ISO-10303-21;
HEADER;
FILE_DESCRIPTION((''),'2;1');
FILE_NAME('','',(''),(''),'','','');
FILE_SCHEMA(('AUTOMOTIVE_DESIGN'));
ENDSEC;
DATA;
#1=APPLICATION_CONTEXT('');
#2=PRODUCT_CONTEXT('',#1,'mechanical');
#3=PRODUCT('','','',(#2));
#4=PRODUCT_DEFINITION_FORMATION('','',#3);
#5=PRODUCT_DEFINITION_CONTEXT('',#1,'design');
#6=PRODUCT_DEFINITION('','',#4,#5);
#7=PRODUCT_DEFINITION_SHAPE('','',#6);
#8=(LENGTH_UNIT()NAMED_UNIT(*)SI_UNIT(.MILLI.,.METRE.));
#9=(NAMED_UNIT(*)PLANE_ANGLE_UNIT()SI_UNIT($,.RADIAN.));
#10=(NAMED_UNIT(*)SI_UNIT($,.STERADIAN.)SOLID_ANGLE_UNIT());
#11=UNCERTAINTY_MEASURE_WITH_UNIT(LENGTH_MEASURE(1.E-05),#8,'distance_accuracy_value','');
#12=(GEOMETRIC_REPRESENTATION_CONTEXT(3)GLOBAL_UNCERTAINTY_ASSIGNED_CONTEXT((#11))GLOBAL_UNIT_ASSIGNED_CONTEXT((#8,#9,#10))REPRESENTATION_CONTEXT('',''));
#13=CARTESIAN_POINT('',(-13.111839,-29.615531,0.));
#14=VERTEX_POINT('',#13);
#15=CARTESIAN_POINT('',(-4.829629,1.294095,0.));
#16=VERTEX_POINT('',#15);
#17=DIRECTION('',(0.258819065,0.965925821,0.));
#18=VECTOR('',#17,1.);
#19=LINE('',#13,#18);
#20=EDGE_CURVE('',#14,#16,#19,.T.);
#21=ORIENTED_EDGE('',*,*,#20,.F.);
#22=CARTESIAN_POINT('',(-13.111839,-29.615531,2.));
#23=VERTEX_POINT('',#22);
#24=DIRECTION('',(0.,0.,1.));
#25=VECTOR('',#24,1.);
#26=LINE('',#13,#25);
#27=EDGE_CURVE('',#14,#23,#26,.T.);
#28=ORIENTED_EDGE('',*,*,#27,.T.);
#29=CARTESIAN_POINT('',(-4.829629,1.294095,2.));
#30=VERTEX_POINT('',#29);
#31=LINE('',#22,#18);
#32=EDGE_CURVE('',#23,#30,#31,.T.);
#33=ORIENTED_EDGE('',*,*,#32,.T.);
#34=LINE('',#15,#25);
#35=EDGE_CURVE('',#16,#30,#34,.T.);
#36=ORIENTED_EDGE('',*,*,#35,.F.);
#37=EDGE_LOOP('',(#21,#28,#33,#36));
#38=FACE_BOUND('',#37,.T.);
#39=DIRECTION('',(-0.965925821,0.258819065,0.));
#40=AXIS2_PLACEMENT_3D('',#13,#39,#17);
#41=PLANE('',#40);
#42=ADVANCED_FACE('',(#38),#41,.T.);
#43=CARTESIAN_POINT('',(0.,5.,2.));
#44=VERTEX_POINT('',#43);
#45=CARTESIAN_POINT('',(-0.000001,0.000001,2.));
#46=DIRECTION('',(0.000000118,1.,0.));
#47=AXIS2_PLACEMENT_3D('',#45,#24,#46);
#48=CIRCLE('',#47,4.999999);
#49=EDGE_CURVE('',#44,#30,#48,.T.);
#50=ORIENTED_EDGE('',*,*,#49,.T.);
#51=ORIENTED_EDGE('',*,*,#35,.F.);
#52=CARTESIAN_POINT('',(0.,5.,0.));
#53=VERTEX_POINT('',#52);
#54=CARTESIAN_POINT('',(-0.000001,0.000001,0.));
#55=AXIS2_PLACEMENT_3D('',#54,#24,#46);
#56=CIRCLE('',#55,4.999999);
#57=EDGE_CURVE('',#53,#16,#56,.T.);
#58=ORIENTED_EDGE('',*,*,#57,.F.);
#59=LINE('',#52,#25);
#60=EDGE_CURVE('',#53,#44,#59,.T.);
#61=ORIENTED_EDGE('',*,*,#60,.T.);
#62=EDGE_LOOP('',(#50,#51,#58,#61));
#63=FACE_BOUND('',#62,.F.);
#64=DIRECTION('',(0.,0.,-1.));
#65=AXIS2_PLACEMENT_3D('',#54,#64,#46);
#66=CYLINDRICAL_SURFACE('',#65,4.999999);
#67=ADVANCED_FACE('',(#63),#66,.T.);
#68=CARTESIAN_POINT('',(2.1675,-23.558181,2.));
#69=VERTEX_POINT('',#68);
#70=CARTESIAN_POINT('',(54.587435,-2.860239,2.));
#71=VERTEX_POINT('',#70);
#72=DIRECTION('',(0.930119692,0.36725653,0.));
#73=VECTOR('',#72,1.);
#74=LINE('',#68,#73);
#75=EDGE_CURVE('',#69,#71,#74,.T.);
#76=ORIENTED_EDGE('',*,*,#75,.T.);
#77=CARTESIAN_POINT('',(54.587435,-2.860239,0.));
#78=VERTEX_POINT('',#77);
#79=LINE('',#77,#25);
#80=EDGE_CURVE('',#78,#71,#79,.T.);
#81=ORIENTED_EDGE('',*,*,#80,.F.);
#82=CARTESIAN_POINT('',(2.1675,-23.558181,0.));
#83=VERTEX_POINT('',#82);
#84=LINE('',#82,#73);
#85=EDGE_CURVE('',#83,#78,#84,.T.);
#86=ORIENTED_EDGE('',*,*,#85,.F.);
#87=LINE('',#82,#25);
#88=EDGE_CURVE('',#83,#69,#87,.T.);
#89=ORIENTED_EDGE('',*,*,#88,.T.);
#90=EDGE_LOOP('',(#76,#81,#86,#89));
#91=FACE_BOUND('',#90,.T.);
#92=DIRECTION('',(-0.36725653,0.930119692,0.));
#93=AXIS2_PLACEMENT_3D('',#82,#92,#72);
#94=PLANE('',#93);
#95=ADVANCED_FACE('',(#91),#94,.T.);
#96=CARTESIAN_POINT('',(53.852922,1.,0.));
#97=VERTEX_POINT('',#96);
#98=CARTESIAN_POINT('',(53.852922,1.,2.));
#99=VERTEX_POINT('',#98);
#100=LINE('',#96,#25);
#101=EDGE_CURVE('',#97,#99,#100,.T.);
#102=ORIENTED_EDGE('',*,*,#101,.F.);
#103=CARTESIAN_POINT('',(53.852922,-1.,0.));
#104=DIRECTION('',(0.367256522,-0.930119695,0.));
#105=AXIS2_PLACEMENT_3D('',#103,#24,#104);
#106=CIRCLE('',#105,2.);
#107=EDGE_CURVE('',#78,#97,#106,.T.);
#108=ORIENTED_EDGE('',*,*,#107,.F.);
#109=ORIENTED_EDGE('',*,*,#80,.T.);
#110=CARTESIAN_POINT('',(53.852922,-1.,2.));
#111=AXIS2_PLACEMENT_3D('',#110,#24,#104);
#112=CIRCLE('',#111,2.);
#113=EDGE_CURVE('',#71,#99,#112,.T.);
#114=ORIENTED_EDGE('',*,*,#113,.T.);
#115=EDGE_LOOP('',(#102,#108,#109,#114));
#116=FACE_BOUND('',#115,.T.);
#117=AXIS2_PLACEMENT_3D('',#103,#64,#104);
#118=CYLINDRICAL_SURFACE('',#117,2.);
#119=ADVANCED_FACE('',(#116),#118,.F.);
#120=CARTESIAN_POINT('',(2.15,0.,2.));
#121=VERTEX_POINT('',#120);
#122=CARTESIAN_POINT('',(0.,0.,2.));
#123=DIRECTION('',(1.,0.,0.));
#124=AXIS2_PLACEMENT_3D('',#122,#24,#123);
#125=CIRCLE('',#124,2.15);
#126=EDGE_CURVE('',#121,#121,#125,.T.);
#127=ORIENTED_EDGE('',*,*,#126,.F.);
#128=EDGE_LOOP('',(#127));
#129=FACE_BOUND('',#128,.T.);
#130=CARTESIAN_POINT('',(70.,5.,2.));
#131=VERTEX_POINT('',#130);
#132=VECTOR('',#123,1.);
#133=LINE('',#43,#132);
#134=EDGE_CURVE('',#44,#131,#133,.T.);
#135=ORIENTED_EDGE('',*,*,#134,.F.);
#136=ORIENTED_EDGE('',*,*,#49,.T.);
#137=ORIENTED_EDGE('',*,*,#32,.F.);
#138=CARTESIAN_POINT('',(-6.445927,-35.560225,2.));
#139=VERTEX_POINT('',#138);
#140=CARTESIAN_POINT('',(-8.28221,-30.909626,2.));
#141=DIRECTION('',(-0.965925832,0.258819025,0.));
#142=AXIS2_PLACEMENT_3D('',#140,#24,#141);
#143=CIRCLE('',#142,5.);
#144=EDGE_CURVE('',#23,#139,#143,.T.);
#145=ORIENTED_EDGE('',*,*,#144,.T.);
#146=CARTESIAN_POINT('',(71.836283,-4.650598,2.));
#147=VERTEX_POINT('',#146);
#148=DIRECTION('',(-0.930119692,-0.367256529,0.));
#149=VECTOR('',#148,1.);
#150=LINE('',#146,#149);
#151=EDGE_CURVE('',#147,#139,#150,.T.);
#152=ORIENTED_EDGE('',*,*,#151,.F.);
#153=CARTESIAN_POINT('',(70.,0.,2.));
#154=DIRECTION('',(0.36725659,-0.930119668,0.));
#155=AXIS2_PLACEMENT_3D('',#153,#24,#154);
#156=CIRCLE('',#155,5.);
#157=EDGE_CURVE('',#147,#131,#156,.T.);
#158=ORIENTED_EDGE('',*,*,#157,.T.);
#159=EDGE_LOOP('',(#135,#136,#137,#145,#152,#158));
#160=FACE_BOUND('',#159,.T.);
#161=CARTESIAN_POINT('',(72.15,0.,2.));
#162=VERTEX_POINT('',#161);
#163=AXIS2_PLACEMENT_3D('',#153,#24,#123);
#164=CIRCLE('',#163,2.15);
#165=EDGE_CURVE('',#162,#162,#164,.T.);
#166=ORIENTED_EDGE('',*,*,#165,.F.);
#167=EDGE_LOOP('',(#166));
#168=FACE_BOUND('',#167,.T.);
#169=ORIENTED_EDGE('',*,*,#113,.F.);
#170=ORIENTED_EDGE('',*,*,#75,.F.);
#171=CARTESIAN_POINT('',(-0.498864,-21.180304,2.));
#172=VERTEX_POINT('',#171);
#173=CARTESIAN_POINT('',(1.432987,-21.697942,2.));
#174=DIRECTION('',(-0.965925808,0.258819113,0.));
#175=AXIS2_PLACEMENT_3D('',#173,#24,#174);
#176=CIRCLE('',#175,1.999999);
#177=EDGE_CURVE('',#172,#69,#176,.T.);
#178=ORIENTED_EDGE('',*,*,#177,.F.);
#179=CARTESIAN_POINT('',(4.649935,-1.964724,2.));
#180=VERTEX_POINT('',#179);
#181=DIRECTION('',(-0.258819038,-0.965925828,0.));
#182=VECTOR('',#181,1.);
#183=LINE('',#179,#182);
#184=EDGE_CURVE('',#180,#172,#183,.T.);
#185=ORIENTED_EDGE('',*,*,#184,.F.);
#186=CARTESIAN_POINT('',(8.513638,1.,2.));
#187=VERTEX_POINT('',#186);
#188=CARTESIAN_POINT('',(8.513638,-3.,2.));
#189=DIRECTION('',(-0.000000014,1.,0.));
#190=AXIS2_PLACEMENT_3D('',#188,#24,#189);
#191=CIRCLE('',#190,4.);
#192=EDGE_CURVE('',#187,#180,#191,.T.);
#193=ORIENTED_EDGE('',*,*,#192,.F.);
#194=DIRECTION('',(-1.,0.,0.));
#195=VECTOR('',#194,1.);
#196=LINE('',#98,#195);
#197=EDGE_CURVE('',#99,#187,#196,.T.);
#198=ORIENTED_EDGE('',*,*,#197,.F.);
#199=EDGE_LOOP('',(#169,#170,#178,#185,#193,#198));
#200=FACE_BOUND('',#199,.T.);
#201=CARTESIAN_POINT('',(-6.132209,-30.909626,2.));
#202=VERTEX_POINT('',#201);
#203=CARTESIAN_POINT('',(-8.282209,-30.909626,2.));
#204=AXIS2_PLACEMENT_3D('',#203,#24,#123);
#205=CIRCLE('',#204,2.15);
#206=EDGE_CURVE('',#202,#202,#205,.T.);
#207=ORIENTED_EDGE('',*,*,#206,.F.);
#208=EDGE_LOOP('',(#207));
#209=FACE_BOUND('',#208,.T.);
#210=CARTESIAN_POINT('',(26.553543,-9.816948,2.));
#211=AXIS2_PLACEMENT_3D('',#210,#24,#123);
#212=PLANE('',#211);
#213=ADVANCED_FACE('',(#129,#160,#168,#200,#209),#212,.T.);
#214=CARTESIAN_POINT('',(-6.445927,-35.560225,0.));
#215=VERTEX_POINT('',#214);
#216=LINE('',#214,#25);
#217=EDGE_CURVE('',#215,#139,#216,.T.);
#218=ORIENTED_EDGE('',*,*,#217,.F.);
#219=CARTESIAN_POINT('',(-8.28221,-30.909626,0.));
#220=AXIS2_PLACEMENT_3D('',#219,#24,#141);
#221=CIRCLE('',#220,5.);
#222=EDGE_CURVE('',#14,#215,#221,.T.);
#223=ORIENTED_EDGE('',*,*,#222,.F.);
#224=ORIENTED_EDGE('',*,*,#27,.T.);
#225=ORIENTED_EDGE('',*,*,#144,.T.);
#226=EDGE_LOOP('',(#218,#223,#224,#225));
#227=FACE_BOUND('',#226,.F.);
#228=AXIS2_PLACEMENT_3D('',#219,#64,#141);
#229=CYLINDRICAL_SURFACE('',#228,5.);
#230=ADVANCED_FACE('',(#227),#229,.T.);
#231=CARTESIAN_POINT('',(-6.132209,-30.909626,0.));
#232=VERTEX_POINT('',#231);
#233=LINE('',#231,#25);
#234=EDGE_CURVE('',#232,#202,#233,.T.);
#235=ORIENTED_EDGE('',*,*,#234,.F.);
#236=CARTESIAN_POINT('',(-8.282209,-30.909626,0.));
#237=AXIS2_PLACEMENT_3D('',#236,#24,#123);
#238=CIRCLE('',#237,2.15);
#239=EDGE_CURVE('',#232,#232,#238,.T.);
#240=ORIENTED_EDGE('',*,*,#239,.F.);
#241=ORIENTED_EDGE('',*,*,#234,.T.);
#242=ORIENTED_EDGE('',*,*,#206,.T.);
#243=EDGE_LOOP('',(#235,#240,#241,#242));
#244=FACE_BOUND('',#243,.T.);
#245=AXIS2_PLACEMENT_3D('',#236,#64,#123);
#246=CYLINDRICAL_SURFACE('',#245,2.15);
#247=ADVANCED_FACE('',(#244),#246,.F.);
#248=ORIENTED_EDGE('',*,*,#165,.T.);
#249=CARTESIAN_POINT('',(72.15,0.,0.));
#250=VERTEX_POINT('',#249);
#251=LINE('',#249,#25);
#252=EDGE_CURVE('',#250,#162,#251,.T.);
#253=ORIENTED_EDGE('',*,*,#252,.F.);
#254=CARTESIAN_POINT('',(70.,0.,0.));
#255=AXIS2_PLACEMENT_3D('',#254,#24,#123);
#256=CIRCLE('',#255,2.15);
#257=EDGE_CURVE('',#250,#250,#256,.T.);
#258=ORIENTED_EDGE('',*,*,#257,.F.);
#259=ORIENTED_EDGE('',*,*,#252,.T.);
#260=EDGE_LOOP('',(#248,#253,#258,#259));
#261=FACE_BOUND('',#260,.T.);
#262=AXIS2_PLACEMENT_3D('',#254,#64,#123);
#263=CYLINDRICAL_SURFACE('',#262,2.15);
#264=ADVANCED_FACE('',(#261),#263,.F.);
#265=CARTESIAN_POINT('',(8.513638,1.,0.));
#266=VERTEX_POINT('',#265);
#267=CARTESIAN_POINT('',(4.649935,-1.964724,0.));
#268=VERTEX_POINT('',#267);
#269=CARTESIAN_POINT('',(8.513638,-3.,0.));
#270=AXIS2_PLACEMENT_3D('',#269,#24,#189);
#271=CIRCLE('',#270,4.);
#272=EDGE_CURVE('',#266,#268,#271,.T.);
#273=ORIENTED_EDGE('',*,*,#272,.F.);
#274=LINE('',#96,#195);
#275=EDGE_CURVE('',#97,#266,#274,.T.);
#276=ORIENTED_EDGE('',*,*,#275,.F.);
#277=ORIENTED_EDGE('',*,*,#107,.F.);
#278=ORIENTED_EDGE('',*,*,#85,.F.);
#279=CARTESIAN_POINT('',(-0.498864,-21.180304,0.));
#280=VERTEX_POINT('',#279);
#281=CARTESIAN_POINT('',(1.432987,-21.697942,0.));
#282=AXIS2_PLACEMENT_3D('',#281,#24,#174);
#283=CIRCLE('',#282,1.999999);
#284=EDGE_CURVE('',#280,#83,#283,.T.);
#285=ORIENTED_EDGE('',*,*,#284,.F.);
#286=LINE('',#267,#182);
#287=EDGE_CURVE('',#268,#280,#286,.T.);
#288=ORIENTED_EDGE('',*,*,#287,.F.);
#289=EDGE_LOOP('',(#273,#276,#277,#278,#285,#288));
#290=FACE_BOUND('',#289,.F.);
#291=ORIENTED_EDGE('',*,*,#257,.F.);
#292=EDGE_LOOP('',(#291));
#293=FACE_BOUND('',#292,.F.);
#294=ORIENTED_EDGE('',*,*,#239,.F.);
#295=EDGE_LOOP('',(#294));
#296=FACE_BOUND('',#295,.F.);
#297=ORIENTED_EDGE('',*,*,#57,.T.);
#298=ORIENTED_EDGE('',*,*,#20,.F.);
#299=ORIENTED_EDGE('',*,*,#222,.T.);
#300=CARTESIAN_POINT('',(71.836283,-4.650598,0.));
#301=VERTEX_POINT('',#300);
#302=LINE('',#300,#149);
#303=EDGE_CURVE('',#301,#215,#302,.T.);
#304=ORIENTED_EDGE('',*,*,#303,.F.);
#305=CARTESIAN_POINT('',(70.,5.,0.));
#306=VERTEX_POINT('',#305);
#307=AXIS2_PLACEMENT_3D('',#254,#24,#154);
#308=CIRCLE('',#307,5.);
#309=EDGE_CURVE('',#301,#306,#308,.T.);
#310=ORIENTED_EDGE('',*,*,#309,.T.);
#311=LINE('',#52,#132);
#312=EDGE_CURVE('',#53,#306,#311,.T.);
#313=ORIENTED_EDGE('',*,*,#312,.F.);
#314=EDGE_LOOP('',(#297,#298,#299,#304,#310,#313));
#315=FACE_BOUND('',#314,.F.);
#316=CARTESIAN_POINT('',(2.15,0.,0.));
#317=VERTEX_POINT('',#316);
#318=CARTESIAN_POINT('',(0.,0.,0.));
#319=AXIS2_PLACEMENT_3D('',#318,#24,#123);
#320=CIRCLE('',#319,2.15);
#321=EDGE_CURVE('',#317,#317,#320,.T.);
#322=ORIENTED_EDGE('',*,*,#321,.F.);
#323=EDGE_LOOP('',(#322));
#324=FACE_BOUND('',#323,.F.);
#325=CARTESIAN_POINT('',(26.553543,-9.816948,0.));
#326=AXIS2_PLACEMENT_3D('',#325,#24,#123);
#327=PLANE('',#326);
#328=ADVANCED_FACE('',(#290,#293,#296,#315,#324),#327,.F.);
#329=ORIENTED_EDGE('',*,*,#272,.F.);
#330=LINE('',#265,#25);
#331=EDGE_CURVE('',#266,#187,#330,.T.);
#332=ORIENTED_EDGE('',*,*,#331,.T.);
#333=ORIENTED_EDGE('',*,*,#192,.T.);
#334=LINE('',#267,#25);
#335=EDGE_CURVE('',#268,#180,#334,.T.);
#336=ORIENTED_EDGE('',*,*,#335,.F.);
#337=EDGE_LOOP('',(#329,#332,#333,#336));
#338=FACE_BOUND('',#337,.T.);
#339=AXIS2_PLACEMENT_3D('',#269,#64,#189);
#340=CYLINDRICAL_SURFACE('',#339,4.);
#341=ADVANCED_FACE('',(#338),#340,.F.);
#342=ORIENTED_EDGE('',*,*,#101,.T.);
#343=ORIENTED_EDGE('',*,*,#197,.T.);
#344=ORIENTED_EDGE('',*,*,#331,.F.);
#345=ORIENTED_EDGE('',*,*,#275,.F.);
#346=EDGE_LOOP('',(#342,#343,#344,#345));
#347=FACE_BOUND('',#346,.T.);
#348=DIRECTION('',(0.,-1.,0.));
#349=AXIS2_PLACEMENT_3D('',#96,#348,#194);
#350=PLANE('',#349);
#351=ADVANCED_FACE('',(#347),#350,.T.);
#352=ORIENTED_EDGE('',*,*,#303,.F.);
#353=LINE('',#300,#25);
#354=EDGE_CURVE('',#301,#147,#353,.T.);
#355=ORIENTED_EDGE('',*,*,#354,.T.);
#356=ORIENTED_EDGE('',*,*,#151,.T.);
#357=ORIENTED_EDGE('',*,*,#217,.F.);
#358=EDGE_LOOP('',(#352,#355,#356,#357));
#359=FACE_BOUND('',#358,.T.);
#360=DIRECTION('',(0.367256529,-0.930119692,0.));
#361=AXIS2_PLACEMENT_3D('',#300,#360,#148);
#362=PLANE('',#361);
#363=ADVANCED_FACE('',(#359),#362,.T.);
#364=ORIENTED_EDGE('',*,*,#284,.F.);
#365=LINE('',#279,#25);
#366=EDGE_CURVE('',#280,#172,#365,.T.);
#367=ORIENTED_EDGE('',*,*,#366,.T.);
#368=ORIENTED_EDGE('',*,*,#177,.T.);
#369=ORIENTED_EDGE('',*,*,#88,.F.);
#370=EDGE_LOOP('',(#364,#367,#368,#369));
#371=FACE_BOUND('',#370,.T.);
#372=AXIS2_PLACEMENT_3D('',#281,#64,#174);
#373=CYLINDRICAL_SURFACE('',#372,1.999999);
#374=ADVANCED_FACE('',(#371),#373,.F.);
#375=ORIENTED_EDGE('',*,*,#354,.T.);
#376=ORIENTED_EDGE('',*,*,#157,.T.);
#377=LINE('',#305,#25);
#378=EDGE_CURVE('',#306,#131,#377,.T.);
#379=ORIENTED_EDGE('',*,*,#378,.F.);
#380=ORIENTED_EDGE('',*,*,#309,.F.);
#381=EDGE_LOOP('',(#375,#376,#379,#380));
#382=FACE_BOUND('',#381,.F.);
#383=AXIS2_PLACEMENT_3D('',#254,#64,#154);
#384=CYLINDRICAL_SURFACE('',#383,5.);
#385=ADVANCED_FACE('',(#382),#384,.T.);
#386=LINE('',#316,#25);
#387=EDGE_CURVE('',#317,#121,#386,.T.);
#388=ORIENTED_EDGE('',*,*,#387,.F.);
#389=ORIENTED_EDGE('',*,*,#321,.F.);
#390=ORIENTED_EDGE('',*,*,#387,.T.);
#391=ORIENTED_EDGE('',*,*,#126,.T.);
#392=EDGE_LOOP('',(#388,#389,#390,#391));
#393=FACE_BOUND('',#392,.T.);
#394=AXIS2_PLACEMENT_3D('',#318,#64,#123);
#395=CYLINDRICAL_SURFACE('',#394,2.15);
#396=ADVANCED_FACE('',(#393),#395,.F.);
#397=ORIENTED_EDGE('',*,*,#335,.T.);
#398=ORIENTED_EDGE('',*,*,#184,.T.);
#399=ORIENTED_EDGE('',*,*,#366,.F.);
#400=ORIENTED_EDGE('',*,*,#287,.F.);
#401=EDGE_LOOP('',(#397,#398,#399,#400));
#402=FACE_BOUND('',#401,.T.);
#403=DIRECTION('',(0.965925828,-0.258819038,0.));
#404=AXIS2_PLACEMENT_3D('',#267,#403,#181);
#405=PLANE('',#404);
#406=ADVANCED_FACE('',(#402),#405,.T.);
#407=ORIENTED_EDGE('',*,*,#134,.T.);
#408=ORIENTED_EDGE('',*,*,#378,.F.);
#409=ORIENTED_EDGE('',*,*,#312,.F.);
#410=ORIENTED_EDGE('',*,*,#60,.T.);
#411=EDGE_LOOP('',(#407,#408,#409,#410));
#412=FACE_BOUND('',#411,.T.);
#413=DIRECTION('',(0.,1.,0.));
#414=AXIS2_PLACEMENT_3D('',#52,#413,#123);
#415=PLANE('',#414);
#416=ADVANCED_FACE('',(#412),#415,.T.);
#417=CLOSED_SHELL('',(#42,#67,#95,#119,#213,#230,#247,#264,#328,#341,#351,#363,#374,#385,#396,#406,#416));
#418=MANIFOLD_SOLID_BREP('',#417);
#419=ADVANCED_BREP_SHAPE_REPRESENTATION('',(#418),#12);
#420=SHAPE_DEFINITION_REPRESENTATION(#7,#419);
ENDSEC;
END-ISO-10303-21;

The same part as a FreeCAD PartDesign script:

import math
import FreeCAD as App
import Part
import Sketcher

V = App.Vector
Q = App.Units.Quantity

doc = App.newDocument("Part")
params = doc.addObject("Spreadsheet::Sheet", "Params")
for row, (alias, value) in enumerate([
    ("sketch1_radius", "4.999999 mm"),
    ("sketch1_radius2", "1.999999 mm"),
    ("sketch1_radius3", "4 mm"),
    ("sketch1_diameter", "4.3 mm"),
    ("sketch1_width", "70 mm"),
    ("pad1_length", "2 mm"),
], start=1):
    params.set(f"A{row}", alias)
    params.set(f"B{row}", "=" + value)
    params.setAlias(f"B{row}", alias)

body = doc.addObject("PartDesign::Body", "Body")

# Sketch on XY plane
sketch1 = body.newObject("Sketcher::SketchObject", "Sketch")
sketch1.AttachmentSupport = (doc.getObject("XY_Plane"), [""])
sketch1.MapMode = "FlatFace"
sketch1.addGeometry(Part.ArcOfCircle(Part.Circle(V(-0.000001, 0.000001, 0), V(0, 0, 1), 4.999999), math.radians(89.999993), math.radians(165.000012)), False)
sketch1.addGeometry(Part.LineSegment(V(-4.829629, 1.294095, 0), V(-13.111839, -29.615531, 0)), False)
sketch1.addGeometry(Part.ArcOfCircle(Part.Circle(V(-8.28221, -30.909626, 0), V(0, 0, 1), 5), math.radians(165.000001), math.radians(291.546517)), False)
sketch1.addGeometry(Part.LineSegment(V(-6.445927, -35.560225, 0), V(71.836283, -4.650598, 0)), False)
sketch1.addGeometry(Part.ArcOfCircle(Part.Circle(V(70, 0, 0), V(0, 0, 1), 5), math.radians(-68.453477), math.radians(90.000001)), False)
sketch1.addGeometry(Part.LineSegment(V(70, 5, 0), V(0, 5, 0)), False)
sketch1.addGeometry(Part.Circle(V(-8.282209, -30.909626, 0), V(0, 0, 1), 2.15), False)
sketch1.addGeometry(Part.LineSegment(V(54.587435, -2.860239, 0), V(2.1675, -23.558181, 0)), False)
sketch1.addGeometry(Part.ArcOfCircle(Part.Circle(V(1.432987, -21.697942, 0), V(0, 0, 1), 1.999999), math.radians(164.999996), math.radians(291.54652)), False)
sketch1.addGeometry(Part.LineSegment(V(-0.498864, -21.180304, 0), V(4.649935, -1.964724, 0)), False)
sketch1.addGeometry(Part.ArcOfCircle(Part.Circle(V(8.513638, -3, 0), V(0, 0, 1), 4), math.radians(90.000001), math.radians(165.000007)), False)
sketch1.addGeometry(Part.LineSegment(V(8.513638, 1, 0), V(53.852922, 1, 0)), False)
sketch1.addGeometry(Part.ArcOfCircle(Part.Circle(V(53.852922, -1, 0), V(0, 0, 1), 2), math.radians(-68.453481), math.radians(90.000001)), False)
sketch1.addGeometry(Part.Circle(V(0, 0, 0), V(0, 0, 1), 2.15), False)
sketch1.addGeometry(Part.Circle(V(70, 0, 0), V(0, 0, 1), 2.15), False)
sketch1.addConstraint(Sketcher.Constraint("Tangent", 0, 2, 1, 1))
sketch1.addConstraint(Sketcher.Constraint("Tangent", 1, 2, 2, 1))
sketch1.addConstraint(Sketcher.Constraint("Tangent", 2, 2, 3, 1))
sketch1.addConstraint(Sketcher.Constraint("Tangent", 3, 2, 4, 1))
sketch1.addConstraint(Sketcher.Constraint("Tangent", 4, 2, 5, 1))
sketch1.addConstraint(Sketcher.Constraint("Tangent", 5, 2, 0, 1))
sketch1.addConstraint(Sketcher.Constraint("Tangent", 7, 2, 8, 2))
sketch1.addConstraint(Sketcher.Constraint("Tangent", 8, 1, 9, 1))
sketch1.addConstraint(Sketcher.Constraint("Tangent", 9, 2, 10, 2))
sketch1.addConstraint(Sketcher.Constraint("Tangent", 10, 1, 11, 1))
sketch1.addConstraint(Sketcher.Constraint("Tangent", 11, 2, 12, 2))
sketch1.addConstraint(Sketcher.Constraint("Tangent", 12, 1, 7, 1))
sketch1.addConstraint(Sketcher.Constraint("Horizontal", 5))
sketch1.addConstraint(Sketcher.Constraint("Horizontal", 11))
sketch1.addConstraint(Sketcher.Constraint("Coincident", 0, 3, -1, 1))
sketch1.addConstraint(Sketcher.Constraint("Coincident", 13, 3, -1, 1))
sketch1.addConstraint(Sketcher.Constraint("Coincident", 6, 3, 2, 3))
sketch1.addConstraint(Sketcher.Constraint("Coincident", 14, 3, 4, 3))
sketch1.addConstraint(Sketcher.Constraint("Equal", 0, 2))
sketch1.addConstraint(Sketcher.Constraint("Equal", 2, 4))
sketch1.addConstraint(Sketcher.Constraint("Equal", 8, 12))
sketch1.addConstraint(Sketcher.Constraint("Equal", 6, 13))
sketch1.addConstraint(Sketcher.Constraint("Equal", 13, 14))
sketch1.addConstraint(Sketcher.Constraint("Parallel", 3, 7))
sketch1.addConstraint(Sketcher.Constraint("Parallel", 1, 9))
sketch1.addConstraint(Sketcher.Constraint("Radius", 0, Q("4.999999 mm")))
sketch1.addConstraint(Sketcher.Constraint("Radius", 8, Q("1.999999 mm")))
sketch1.addConstraint(Sketcher.Constraint("Radius", 10, Q("4 mm")))
sketch1.addConstraint(Sketcher.Constraint("Diameter", 6, Q("4.3 mm")))
sketch1.addConstraint(Sketcher.Constraint("DistanceX", 5, 2, 5, 1, Q("70 mm")))
sketch1.addConstraint(Sketcher.Constraint("Angle", 1, Q("-105.000001 deg")))
sketch1.addConstraint(Sketcher.Constraint("Distance", 1, Q("32 mm")))
sketch1.addConstraint(Sketcher.Constraint("DistanceY", 10, 3, -1, 1, Q("3 mm")))
sketch1.addConstraint(Sketcher.Constraint("DistanceX", -1, 1, 7, 2, Q("2.1675 mm")))
sketch1.addConstraint(Sketcher.Constraint("Distance", 7, Q("56.358268 mm")))
sketch1.setExpression("Constraints[25]", "Params.sketch1_radius")
sketch1.setExpression("Constraints[26]", "Params.sketch1_radius2")
sketch1.setExpression("Constraints[27]", "Params.sketch1_radius3")
sketch1.setExpression("Constraints[28]", "Params.sketch1_diameter")
sketch1.setExpression("Constraints[29]", "Params.sketch1_width")
pad1 = body.newObject("PartDesign::Pad", "Pad")
pad1.Profile = sketch1
pad1.setExpression("Length", "Params.pad1_length")

doc.recompute()
